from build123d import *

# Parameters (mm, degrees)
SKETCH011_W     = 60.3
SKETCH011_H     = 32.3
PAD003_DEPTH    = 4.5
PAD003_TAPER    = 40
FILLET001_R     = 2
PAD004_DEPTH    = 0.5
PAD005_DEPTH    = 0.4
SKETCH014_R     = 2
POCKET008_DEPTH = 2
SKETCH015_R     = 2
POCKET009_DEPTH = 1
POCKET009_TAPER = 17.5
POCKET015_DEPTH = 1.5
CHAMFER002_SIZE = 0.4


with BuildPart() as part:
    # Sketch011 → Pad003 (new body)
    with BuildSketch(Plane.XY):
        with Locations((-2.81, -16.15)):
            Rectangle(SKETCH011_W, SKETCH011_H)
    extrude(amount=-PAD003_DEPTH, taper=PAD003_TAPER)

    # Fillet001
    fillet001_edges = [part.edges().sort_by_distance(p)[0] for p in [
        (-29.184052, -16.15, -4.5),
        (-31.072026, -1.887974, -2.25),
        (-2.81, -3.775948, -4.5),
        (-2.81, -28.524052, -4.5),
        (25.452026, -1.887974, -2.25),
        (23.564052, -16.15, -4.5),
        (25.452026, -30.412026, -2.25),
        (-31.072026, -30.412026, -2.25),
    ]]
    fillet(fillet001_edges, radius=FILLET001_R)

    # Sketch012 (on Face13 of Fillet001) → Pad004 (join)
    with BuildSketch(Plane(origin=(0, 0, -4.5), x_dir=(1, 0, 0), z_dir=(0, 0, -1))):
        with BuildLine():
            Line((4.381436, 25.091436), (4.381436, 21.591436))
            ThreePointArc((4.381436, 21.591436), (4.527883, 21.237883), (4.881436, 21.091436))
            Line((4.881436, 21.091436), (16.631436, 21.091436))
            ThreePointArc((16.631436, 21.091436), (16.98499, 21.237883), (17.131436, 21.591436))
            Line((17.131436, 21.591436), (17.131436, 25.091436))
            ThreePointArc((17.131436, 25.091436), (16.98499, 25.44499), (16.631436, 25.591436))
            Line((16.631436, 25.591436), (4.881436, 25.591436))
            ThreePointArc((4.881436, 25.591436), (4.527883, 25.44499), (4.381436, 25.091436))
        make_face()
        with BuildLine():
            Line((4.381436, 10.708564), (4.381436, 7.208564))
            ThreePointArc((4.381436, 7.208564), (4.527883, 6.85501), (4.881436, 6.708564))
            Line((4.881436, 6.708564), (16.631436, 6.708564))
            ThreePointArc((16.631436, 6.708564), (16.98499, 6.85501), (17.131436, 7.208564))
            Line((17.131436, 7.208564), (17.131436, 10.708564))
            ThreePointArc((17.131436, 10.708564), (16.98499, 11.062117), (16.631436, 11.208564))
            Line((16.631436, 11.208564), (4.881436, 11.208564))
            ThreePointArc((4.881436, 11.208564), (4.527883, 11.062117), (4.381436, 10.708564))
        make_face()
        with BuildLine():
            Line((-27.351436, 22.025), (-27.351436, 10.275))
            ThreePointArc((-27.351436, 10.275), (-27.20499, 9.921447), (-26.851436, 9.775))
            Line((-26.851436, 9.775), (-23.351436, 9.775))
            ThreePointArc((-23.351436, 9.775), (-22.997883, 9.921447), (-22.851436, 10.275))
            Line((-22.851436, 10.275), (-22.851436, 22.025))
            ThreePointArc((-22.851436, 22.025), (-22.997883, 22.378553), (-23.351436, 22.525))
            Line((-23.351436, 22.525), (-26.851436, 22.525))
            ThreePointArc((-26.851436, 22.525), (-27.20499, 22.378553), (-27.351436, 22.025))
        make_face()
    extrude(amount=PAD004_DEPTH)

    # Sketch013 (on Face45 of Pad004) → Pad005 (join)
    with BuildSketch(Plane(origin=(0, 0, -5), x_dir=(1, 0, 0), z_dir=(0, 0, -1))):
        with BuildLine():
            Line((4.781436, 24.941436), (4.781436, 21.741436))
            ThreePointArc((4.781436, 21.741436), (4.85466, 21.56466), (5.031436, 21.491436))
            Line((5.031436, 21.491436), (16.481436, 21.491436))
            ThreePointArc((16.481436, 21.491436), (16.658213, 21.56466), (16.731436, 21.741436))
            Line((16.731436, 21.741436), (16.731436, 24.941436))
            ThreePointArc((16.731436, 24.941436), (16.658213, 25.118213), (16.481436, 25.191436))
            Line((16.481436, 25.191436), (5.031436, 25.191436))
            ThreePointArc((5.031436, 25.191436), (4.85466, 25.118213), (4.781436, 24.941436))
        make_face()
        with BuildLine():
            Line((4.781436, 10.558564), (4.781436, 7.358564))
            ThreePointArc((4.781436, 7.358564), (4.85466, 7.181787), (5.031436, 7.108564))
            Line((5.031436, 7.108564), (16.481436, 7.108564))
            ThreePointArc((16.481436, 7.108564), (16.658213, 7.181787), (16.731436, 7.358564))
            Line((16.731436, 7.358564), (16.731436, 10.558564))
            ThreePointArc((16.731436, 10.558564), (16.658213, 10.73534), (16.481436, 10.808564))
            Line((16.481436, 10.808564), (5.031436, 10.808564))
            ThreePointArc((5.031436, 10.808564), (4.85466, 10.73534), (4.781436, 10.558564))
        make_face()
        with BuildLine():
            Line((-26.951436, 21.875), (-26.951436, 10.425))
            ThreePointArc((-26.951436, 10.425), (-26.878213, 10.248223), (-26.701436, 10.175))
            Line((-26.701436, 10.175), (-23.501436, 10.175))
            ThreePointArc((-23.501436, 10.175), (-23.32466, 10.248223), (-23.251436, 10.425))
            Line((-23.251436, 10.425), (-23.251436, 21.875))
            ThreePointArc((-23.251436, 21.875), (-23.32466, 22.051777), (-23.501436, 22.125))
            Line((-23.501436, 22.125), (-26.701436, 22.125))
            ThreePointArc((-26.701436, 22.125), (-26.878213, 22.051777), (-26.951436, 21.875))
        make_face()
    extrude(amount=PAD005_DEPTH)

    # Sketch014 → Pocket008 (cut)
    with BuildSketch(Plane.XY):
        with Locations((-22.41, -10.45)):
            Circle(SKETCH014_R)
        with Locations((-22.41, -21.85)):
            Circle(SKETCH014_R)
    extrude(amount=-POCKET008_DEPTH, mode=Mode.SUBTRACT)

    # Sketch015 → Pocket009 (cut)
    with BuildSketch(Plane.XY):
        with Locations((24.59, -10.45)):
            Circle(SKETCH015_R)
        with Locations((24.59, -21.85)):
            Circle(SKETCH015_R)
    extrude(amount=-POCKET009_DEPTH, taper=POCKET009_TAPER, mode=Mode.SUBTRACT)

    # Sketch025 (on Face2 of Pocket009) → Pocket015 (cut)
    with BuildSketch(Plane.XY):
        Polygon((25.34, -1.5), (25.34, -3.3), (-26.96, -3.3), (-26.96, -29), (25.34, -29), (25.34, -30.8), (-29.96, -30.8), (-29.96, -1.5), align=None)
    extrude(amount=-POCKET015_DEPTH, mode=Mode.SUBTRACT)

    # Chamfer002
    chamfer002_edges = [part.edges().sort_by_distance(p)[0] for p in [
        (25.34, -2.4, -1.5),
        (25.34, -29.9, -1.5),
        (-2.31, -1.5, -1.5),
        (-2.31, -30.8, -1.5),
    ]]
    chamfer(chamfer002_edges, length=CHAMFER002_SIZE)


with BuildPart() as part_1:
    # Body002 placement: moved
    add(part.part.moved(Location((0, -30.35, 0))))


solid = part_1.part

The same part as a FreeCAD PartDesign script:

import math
import FreeCAD as App
import Part
import Sketcher

V = App.Vector
Q = App.Units.Quantity


def edges_at(feature, points):
    """Names of the edges that pass closest to the given points."""
    edges = feature.Shape.Edges
    near = lambda p: min(range(len(edges)), key=lambda i: edges[i].distToShape(Part.Vertex(*p))[0])
    return sorted({f"Edge{near(p) + 1}" for p in points})


def add_polygon(sketch, points):
    """Adds a closed chain of lines whose ends are joined by coincident constraints."""
    first, n = sketch.GeometryCount, len(points)
    for a, b in zip(points, points[1:] + points[:1]):
        sketch.addGeometry(Part.LineSegment(App.Vector(*a, 0), App.Vector(*b, 0)), False)
    for i in range(n):
        sketch.addConstraint(Sketcher.Constraint("Coincident", first + i, 2, first + (i + 1) % n, 1))

doc = App.newDocument("Part")
params = doc.addObject("Spreadsheet::Sheet", "Params")
for row, (alias, value) in enumerate([
    ("sketch1_width", "60.3 mm"),
    ("sketch1_height", "32.3 mm"),
    ("pad1_length", "4.5 mm"),
    ("pad1_taper", "-40 deg"),
    ("fillet_radius", "2 mm"),
    ("sketch2_radius", "0.500001 mm"),
    ("sketch2_width", "3.5 mm"),
    ("sketch2_width2", "11.75 mm"),
    ("pad2_length", "0.5 mm"),
    ("sketch3_radius", "0.250001 mm"),
    ("sketch3_width", "3.2 mm"),
    ("sketch3_width2", "11.45 mm"),
    ("pad3_length", "0.4 mm"),
    ("sketch4_diameter", "4 mm"),
    ("pocket1_length", "2 mm"),
    ("sketch5_diameter", "4 mm"),
    ("pocket2_length", "1 mm"),
    ("pocket2_taper", "-17.5 deg"),
    ("sketch6_width", "55.3 mm"),
    ("sketch6_width2", "52.3 mm"),
    ("sketch6_height", "1.8 mm"),
    ("sketch6_height2", "29.3 mm"),
    ("pocket3_length", "1.5 mm"),
    ("chamfer_size", "0.4 mm"),
], start=1):
    params.set(f"A{row}", alias)
    params.set(f"B{row}", "=" + value)
    params.setAlias(f"B{row}", alias)

body = doc.addObject("PartDesign::Body", "Body")

# Sketch on XY plane
sketch1 = doc.addObject("Sketcher::SketchObject", "Sketch")
body.addObject(sketch1)
sketch1.AttachmentSupport = (doc.XY_Plane, [""])
sketch1.MapMode = "FlatFace"
add_polygon(sketch1, [(-33, 0), (-33, -32), (27, -32), (27, 0)])  # lines 0-3
sketch1.addConstraint(Sketcher.Constraint("Vertical", 0))
sketch1.addConstraint(Sketcher.Constraint("Horizontal", 1))
sketch1.addConstraint(Sketcher.Constraint("Vertical", 2))
sketch1.addConstraint(Sketcher.Constraint("Horizontal", 3))
sketch1.addConstraint(Sketcher.Constraint("PointOnObject", 2, 2, -1))
sketch1.addConstraint(Sketcher.Constraint("DistanceX", 1, 1, 1, 2, Q("60.3 mm")))
sketch1.addConstraint(Sketcher.Constraint("DistanceY", 0, 2, 0, 1, Q("32.3 mm")))
sketch1.addConstraint(Sketcher.Constraint("DistanceX", 0, 2, -1, 1, Q("32.96 mm")))
sketch1.setExpression("Constraints[9]", "Params.sketch1_width")
sketch1.setExpression("Constraints[10]", "Params.sketch1_height")
pad1 = doc.addObject("PartDesign::Pad", "Pad")
body.addObject(pad1)
pad1.Profile = sketch1
pad1.setExpression("Length", "Params.pad1_length")
pad1.Reversed = True
pad1.setExpression("TaperAngle", "Params.pad1_taper")
doc.recompute()

fillet = doc.addObject("PartDesign::Fillet", "Fillet")
body.addObject(fillet)
fillet.Base = (pad1, edges_at(pad1, [
    (-29.184, -16.15, -4.5),
    (-31.072, -1.888, -2.25),
    (-2.81, -3.776, -4.5),
    (-2.81, -28.524, -4.5),
    (25.452, -1.888, -2.25),
    (23.564, -16.15, -4.5),
    (25.452, -30.412, -2.25),
    (-31.072, -30.412, -2.25),
]))
fillet.setExpression("Radius", "Params.fillet_radius")

# Sketch on XY plane
sketch2 = doc.addObject("Sketcher::SketchObject", "Sketch001")
body.addObject(sketch2)
sketch2.AttachmentSupport = (doc.XY_Plane, [""])
sketch2.MapMode = "FlatFace"
sketch2.AttachmentOffset = App.Placement(V(0, 0, -4.5), App.Rotation())
sketch2.addGeometry(Part.LineSegment(V(4.38, -25.09, 0), V(4.38, -21.59, 0)), False)
sketch2.addGeometry(Part.ArcOfCircle(Part.Circle(V(4.88, -21.59, 0), V(0, 0, 1), 0.5), math.radians(90), math.radians(180)), False)
sketch2.addGeometry(Part.LineSegment(V(4.88, -21.09, 0), V(16.63, -21.09, 0)), False)
sketch2.addGeometry(Part.ArcOfCircle(Part.Circle(V(16.63, -21.59, 0), V(0, 0, 1), 0.5), math.radians(0), math.radians(90)), False)
sketch2.addGeometry(Part.LineSegment(V(17.13, -21.59, 0), V(17.13, -25.09, 0)), False)
sketch2.addGeometry(Part.ArcOfCircle(Part.Circle(V(16.63, -25.09, 0), V(0, 0, 1), 0.5), math.radians(-90), math.radians(0)), False)
sketch2.addGeometry(Part.LineSegment(V(16.63, -25.59, 0), V(4.88, -25.59, 0)), False)
sketch2.addGeometry(Part.ArcOfCircle(Part.Circle(V(4.88, -25.09, 0), V(0, 0, 1), 0.5), math.radians(180), math.radians(270)), False)
sketch2.addGeometry(Part.LineSegment(V(4.38, -10.71, 0), V(4.38, -7.21, 0)), False)
sketch2.addGeometry(Part.ArcOfCircle(Part.Circle(V(4.88, -7.21, 0), V(0, 0, 1), 0.5), math.radians(90), math.radians(180)), False)
sketch2.addGeometry(Part.LineSegment(V(4.88, -6.71, 0), V(16.63, -6.71, 0)), False)
sketch2.addGeometry(Part.ArcOfCircle(Part.Circle(V(16.63, -7.21, 0), V(0, 0, 1), 0.5), math.radians(0), math.radians(90)), False)
sketch2.addGeometry(Part.LineSegment(V(17.13, -7.21, 0), V(17.13, -10.71, 0)), False)
sketch2.addGeometry(Part.ArcOfCircle(Part.Circle(V(16.63, -10.71, 0), V(0, 0, 1), 0.5), math.radians(-90), math.radians(0)), False)
sketch2.addGeometry(Part.LineSegment(V(16.63, -11.21, 0), V(4.88, -11.21, 0)), False)
sketch2.addGeometry(Part.ArcOfCircle(Part.Circle(V(4.88, -10.71, 0), V(0, 0, 1), 0.5), math.radians(-180), math.radians(-90)), False)
sketch2.addGeometry(Part.LineSegment(V(-27.35, -22.02, 0), V(-27.35, -10.28, 0)), False)
sketch2.addGeometry(Part.ArcOfCircle(Part.Circle(V(-26.85, -10.27, 0), V(0, 0, 1), 0.5), math.radians(90), math.radians(180)), False)
sketch2.addGeometry(Part.LineSegment(V(-26.85, -9.78, 0), V(-23.35, -9.78, 0)), False)
sketch2.addGeometry(Part.ArcOfCircle(Part.Circle(V(-23.35, -10.28, 0), V(0, 0, 1), 0.5), math.radians(0), math.radians(90)), False)
sketch2.addGeometry(Part.LineSegment(V(-22.85, -10.28, 0), V(-22.85, -22.02, 0)), False)
sketch2.addGeometry(Part.ArcOfCircle(Part.Circle(V(-23.35, -22.02, 0), V(0, 0, 1), 0.5), math.radians(-90), math.radians(0)), False)
sketch2.addGeometry(Part.LineSegment(V(-23.35, -22.52, 0), V(-26.85, -22.52, 0)), False)
sketch2.addGeometry(Part.ArcOfCircle(Part.Circle(V(-26.85, -22.03, 0), V(0, 0, 1), 0.5), math.radians(180), math.radians(270)), False)
sketch2.addConstraint(Sketcher.Constraint("Coincident", 0, 2, 1, 2))
sketch2.addConstraint(Sketcher.Constraint("Coincident", 1, 1, 2, 1))
sketch2.addConstraint(Sketcher.Constraint("Tangent", 2, 2, 3, 2))
sketch2.addConstraint(Sketcher.Constraint("Tangent", 3, 1, 4, 1))
sketch2.addConstraint(Sketcher.Constraint("Coincident", 4, 2, 5, 2))
sketch2.addConstraint(Sketcher.Constraint("Coincident", 5, 1, 6, 1))
sketch2.addConstraint(Sketcher.Constraint("Tangent", 6, 2, 7, 2))
sketch2.addConstraint(Sketcher.Constraint("Tangent", 7, 1, 0, 1))
sketch2.addConstraint(Sketcher.Constraint("Tangent", 8, 2, 9, 2))
sketch2.addConstraint(Sketcher.Constraint("Tangent", 9, 1, 10, 1))
sketch2.addConstraint(Sketcher.Constraint("Coincident", 10, 2, 11, 2))
sketch2.addConstraint(Sketcher.Constraint("Coincident", 11, 1, 12, 1))
sketch2.addConstraint(Sketcher.Constraint("Tangent", 12, 2, 13, 2))
sketch2.addConstraint(Sketcher.Constraint("Tangent", 13, 1, 14, 1))
sketch2.addConstraint(Sketcher.Constraint("Coincident", 14, 2, 15, 2))
sketch2.addConstraint(Sketcher.Constraint("Coincident", 15, 1, 8, 1))
sketch2.addConstraint(Sketcher.Constraint("Tangent", 16, 2, 17, 2))
sketch2.addConstraint(Sketcher.Constraint("Tangent", 17, 1, 18, 1))
sketch2.addConstraint(Sketcher.Constraint("Coincident", 18, 2, 19, 2))
sketch2.addConstraint(Sketcher.Constraint("Coincident", 19, 1, 20, 1))
sketch2.addConstraint(Sketcher.Constraint("Coincident", 20, 2, 21, 2))
sketch2.addConstraint(Sketcher.Constraint("Coincident", 21, 1, 22, 1))
sketch2.addConstraint(Sketcher.Constraint("Tangent", 22, 2, 23, 2))
sketch2.addConstraint(Sketcher.Constraint("Tangent", 23, 1, 16, 1))
sketch2.addConstraint(Sketcher.Constraint("Vertical", 0))
sketch2.addConstraint(Sketcher.Constraint("Horizontal", 2))
sketch2.addConstraint(Sketcher.Constraint("Vertical", 4))
sketch2.addConstraint(Sketcher.Constraint("Horizontal", 6))
sketch2.addConstraint(Sketcher.Constraint("Vertical", 8))
sketch2.addConstraint(Sketcher.Constraint("Horizontal", 10))
sketch2.addConstraint(Sketcher.Constraint("Vertical", 12))
sketch2.addConstraint(Sketcher.Constraint("Horizontal", 14))
sketch2.addConstraint(Sketcher.Constraint("Vertical", 16))
sketch2.addConstraint(Sketcher.Constraint("Horizontal", 18))
sketch2.addConstraint(Sketcher.Constraint("Vertical", 20))
sketch2.addConstraint(Sketcher.Constraint("Horizontal", 22))
sketch2.addConstraint(Sketcher.Constraint("Equal", 1, 3))
sketch2.addConstraint(Sketcher.Constraint("Equal", 3, 5))
sketch2.addConstraint(Sketcher.Constraint("Equal", 5, 7))
sketch2.addConstraint(Sketcher.Constraint("Equal", 7, 9))
sketch2.addConstraint(Sketcher.Constraint("Equal", 9, 11))
sketch2.addConstraint(Sketcher.Constraint("Equal", 11, 13))
sketch2.addConstraint(Sketcher.Constraint("Equal", 13, 15))
sketch2.addConstraint(Sketcher.Constraint("Equal", 15, 17))
sketch2.addConstraint(Sketcher.Constraint("Equal", 17, 19))
sketch2.addConstraint(Sketcher.Constraint("Equal", 19, 21))
sketch2.addConstraint(Sketcher.Constraint("Equal", 21, 23))
sketch2.addConstraint(Sketcher.Constraint("Horizontal", 3, 3, 0, 2))
sketch2.addConstraint(Sketcher.Constraint("Horizontal", 7, 3, 4, 2))
sketch2.addConstraint(Sketcher.Constraint("Horizontal", 8, 2, 11, 1))
sketch2.addConstraint(Sketcher.Constraint("Horizontal", 12, 2, 15, 1))
sketch2.addConstraint(Sketcher.Constraint("Horizontal", 16, 2, 19, 1))
sketch2.addConstraint(Sketcher.Constraint("Horizontal", 23, 3, 20, 2))
sketch2.addConstraint(Sketcher.Constraint("Vertical", 7, 3, 9, 3))
sketch2.addConstraint(Sketcher.Constraint("Vertical", 5, 3, 11, 3))
sketch2.addConstraint(Sketcher.Constraint("Vertical", 15, 3, 1, 1))
sketch2.addConstraint(Sketcher.Constraint("Vertical", 2, 2, 5, 1))
sketch2.addConstraint(Sketcher.Constraint("Vertical", 5, 1, 10, 2))
sketch2.addConstraint(Sketcher.Constraint("Vertical", 9, 1, 14, 2))
sketch2.addConstraint(Sketcher.Constraint("Vertical", 21, 3, 18, 2))
sketch2.addConstraint(Sketcher.Constraint("Vertical", 18, 2, 21, 1))
sketch2.addConstraint(Sketcher.Constraint("Equal", 22, 0))
sketch2.addConstraint(Sketcher.Constraint("Equal", 4, 8))
sketch2.addConstraint(Sketcher.Constraint("Equal", 14, 16))
sketch2.addConstraint(Sketcher.Constraint("Radius", 1, Q("0.500001 mm")))
sketch2.addConstraint(Sketcher.Constraint("DistanceX", 18, 1, 18, 2, Q("3.5 mm")))
sketch2.addConstraint(Sketcher.Constraint("DistanceX", 2, 1, 2, 2, Q("11.75 mm")))
sketch2.addConstraint(Sketcher.Constraint("DistanceY", 17, 3, -1, 1, Q("10.275 mm")))
sketch2.addConstraint(Sketcher.Constraint("DistanceX", -1, 1, 5, 3, Q("16.631438 mm")))
sketch2.addConstraint(Sketcher.Constraint("DistanceY", 5, 3, -1, 1, Q("25.091438 mm")))
sketch2.addConstraint(Sketcher.Constraint("DistanceY", 11, 3, -1, 1, Q("7.208562 mm")))
sketch2.addConstraint(Sketcher.Constraint("DistanceX", 17, 3, -1, 1, Q("26.851436 mm")))
sketch2.setExpression("Constraints[64]", "Params.sketch2_radius")
sketch2.setExpression("Constraints[65]", "Params.sketch2_width")
sketch2.setExpression("Constraints[66]", "Params.sketch2_width2")
pad2 = doc.addObject("PartDesign::Pad", "Pad001")
body.addObject(pad2)
pad2.Profile = sketch2
pad2.setExpression("Length", "Params.pad2_length")
pad2.Reversed = True

# Sketch on XY plane
sketch3 = doc.addObject("Sketcher::SketchObject", "Sketch002")
body.addObject(sketch3)
sketch3.AttachmentSupport = (doc.XY_Plane, [""])
sketch3.MapMode = "FlatFace"
sketch3.AttachmentOffset = App.Placement(V(0, 0, -5), App.Rotation())
sketch3.addGeometry(Part.LineSegment(V(4.78, -24.94, 0), V(4.78, -21.74, 0)), False)
sketch3.addGeometry(Part.ArcOfCircle(Part.Circle(V(5.03, -21.74, 0), V(0, 0, 1), 0.25), math.radians(90), math.radians(180)), False)
sketch3.addGeometry(Part.LineSegment(V(5.03, -21.49, 0), V(16.48, -21.49, 0)), False)
sketch3.addGeometry(Part.ArcOfCircle(Part.Circle(V(16.48, -21.74, 0), V(0, 0, 1), 0.25), math.radians(0), math.radians(90)), False)
sketch3.addGeometry(Part.LineSegment(V(16.73, -21.74, 0), V(16.73, -24.94, 0)), False)
sketch3.addGeometry(Part.ArcOfCircle(Part.Circle(V(16.48, -24.94, 0), V(0, 0, 1), 0.25), math.radians(-90), math.radians(0)), False)
sketch3.addGeometry(Part.LineSegment(V(16.48, -25.19, 0), V(5.03, -25.19, 0)), False)
sketch3.addGeometry(Part.ArcOfCircle(Part.Circle(V(5.03, -24.94, 0), V(0, 0, 1), 0.25), math.radians(-180), math.radians(-90)), False)
sketch3.addGeometry(Part.LineSegment(V(4.78, -10.56, 0), V(4.78, -7.36, 0)), False)
sketch3.addGeometry(Part.ArcOfCircle(Part.Circle(V(5.03, -7.36, 0), V(0, 0, 1), 0.25), math.radians(90), math.radians(180)), False)
sketch3.addGeometry(Part.LineSegment(V(5.03, -7.11, 0), V(16.48, -7.11, 0)), False)
sketch3.addGeometry(Part.ArcOfCircle(Part.Circle(V(16.48, -7.36, 0), V(0, 0, 1), 0.25), math.radians(0), math.radians(90)), False)
sketch3.addGeometry(Part.LineSegment(V(16.73, -7.36, 0), V(16.73, -10.56, 0)), False)
sketch3.addGeometry(Part.ArcOfCircle(Part.Circle(V(16.48, -10.56, 0), V(0, 0, 1), 0.25), math.radians(-90), math.radians(0)), False)
sketch3.addGeometry(Part.LineSegment(V(16.48, -10.81, 0), V(5.03, -10.81, 0)), False)
sketch3.addGeometry(Part.ArcOfCircle(Part.Circle(V(5.03, -10.56, 0), V(0, 0, 1), 0.25), math.radians(-180), math.radians(-90)), False)
sketch3.addGeometry(Part.LineSegment(V(-26.95, -21.88, 0), V(-26.95, -10.43, 0)), False)
sketch3.addGeometry(Part.ArcOfCircle(Part.Circle(V(-26.7, -10.42, 0), V(0, 0, 1), 0.25), math.radians(90), math.radians(180)), False)
sketch3.addGeometry(Part.LineSegment(V(-26.7, -10.18, 0), V(-23.5, -10.18, 0)), False)
sketch3.addGeometry(Part.ArcOfCircle(Part.Circle(V(-23.5, -10.43, 0), V(0, 0, 1), 0.25), math.radians(0), math.radians(90)), False)
sketch3.addGeometry(Part.LineSegment(V(-23.25, -10.43, 0), V(-23.25, -21.88, 0)), False)
sketch3.addGeometry(Part.ArcOfCircle(Part.Circle(V(-23.5, -21.87, 0), V(0, 0, 1), 0.25), math.radians(-90), math.radians(0)), False)
sketch3.addGeometry(Part.LineSegment(V(-23.5, -22.12, 0), V(-26.7, -22.12, 0)), False)
sketch3.addGeometry(Part.ArcOfCircle(Part.Circle(V(-26.7, -21.88, 0), V(0, 0, 1), 0.25), math.radians(180), math.radians(270)), False)
sketch3.addConstraint(Sketcher.Constraint("Coincident", 0, 2, 1, 2))
sketch3.addConstraint(Sketcher.Constraint("Coincident", 1, 1, 2, 1))
sketch3.addConstraint(Sketcher.Constraint("Coincident", 2, 2, 3, 2))
sketch3.addConstraint(Sketcher.Constraint("Coincident", 3, 1, 4, 1))
sketch3.addConstraint(Sketcher.Constraint("Coincident", 4, 2, 5, 2))
sketch3.addConstraint(Sketcher.Constraint("Coincident", 5, 1, 6, 1))
sketch3.addConstraint(Sketcher.Constraint("Coincident", 6, 2, 7, 2))
sketch3.addConstraint(Sketcher.Constraint("Coincident", 7, 1, 0, 1))
sketch3.addConstraint(Sketcher.Constraint("Coincident", 8, 2, 9, 2))
sketch3.addConstraint(Sketcher.Constraint("Coincident", 9, 1, 10, 1))
sketch3.addConstraint(Sketcher.Constraint("Coincident", 10, 2, 11, 2))
sketch3.addConstraint(Sketcher.Constraint("Coincident", 11, 1, 12, 1))
sketch3.addConstraint(Sketcher.Constraint("Coincident", 12, 2, 13, 2))
sketch3.addConstraint(Sketcher.Constraint("Coincident", 13, 1, 14, 1))
sketch3.addConstraint(Sketcher.Constraint("Coincident", 14, 2, 15, 2))
sketch3.addConstraint(Sketcher.Constraint("Coincident", 15, 1, 8, 1))
sketch3.addConstraint(Sketcher.Constraint("Coincident", 16, 2, 17, 2))
sketch3.addConstraint(Sketcher.Constraint("Coincident", 17, 1, 18, 1))
sketch3.addConstraint(Sketcher.Constraint("Coincident", 18, 2, 19, 2))
sketch3.addConstraint(Sketcher.Constraint("Coincident", 19, 1, 20, 1))
sketch3.addConstraint(Sketcher.Constraint("Coincident", 20, 2, 21, 2))
sketch3.addConstraint(Sketcher.Constraint("Coincident", 21, 1, 22, 1))
sketch3.addConstraint(Sketcher.Constraint("Coincident", 22, 2, 23, 2))
sketch3.addConstraint(Sketcher.Constraint("Coincident", 23, 1, 16, 1))
sketch3.addConstraint(Sketcher.Constraint("Vertical", 0))
sketch3.addConstraint(Sketcher.Constraint("Horizontal", 2))
sketch3.addConstraint(Sketcher.Constraint("Vertical", 4))
sketch3.addConstraint(Sketcher.Constraint("Horizontal", 6))
sketch3.addConstraint(Sketcher.Constraint("Vertical", 8))
sketch3.addConstraint(Sketcher.Constraint("Horizontal", 10))
sketch3.addConstraint(Sketcher.Constraint("Vertical", 12))
sketch3.addConstraint(Sketcher.Constraint("Horizontal", 14))
sketch3.addConstraint(Sketcher.Constraint("Vertical", 16))
sketch3.addConstraint(Sketcher.Constraint("Horizontal", 18))
sketch3.addConstraint(Sketcher.Constraint("Vertical", 20))
sketch3.addConstraint(Sketcher.Constraint("Horizontal", 22))
sketch3.addConstraint(Sketcher.Constraint("Equal", 1, 3))
sketch3.addConstraint(Sketcher.Constraint("Equal", 3, 5))
sketch3.addConstraint(Sketcher.Constraint("Equal", 5, 7))
sketch3.addConstraint(Sketcher.Constraint("Equal", 7, 9))
sketch3.addConstraint(Sketcher.Constraint("Equal", 9, 11))
sketch3.addConstraint(Sketcher.Constraint("Equal", 11, 13))
sketch3.addConstraint(Sketcher.Constraint("Equal", 13, 15))
sketch3.addConstraint(Sketcher.Constraint("Equal", 13, 17))
sketch3.addConstraint(Sketcher.Constraint("Equal", 17, 19))
sketch3.addConstraint(Sketcher.Constraint("Equal", 19, 21))
sketch3.addConstraint(Sketcher.Constraint("Equal", 21, 23))
sketch3.addConstraint(Sketcher.Constraint("Horizontal", 3, 3, 0, 2))
sketch3.addConstraint(Sketcher.Constraint("Horizontal", 0, 2, 3, 1))
sketch3.addConstraint(Sketcher.Constraint("Horizontal", 7, 3, 4, 2))
sketch3.addConstraint(Sketcher.Constraint("Horizontal", 4, 2, 7, 1))
sketch3.addConstraint(Sketcher.Constraint("Horizontal", 11, 3, 8, 2))
sketch3.addConstraint(Sketcher.Constraint("Horizontal", 8, 2, 11, 1))
sketch3.addConstraint(Sketcher.Constraint("Horizontal", 13, 3, 12, 2))
sketch3.addConstraint(Sketcher.Constraint("Horizontal", 12, 2, 15, 1))
sketch3.addConstraint(Sketcher.Constraint("Horizontal", 19, 3, 16, 2))
sketch3.addConstraint(Sketcher.Constraint("Horizontal", 16, 2, 19, 1))
sketch3.addConstraint(Sketcher.Constraint("Horizontal", 23, 3, 20, 2))
sketch3.addConstraint(Sketcher.Constraint("Horizontal", 20, 2, 23, 1))
sketch3.addConstraint(Sketcher.Constraint("Vertical", 7, 3, 9, 3))
sketch3.addConstraint(Sketcher.Constraint("Vertical", 5, 3, 11, 3))
sketch3.addConstraint(Sketcher.Constraint("Vertical", 9, 3, 1, 1))
sketch3.addConstraint(Sketcher.Constraint("Vertical", 13, 3, 2, 2))
sketch3.addConstraint(Sketcher.Constraint("Vertical", 2, 2, 5, 1))
sketch3.addConstraint(Sketcher.Constraint("Vertical", 1, 1, 6, 2))
sketch3.addConstraint(Sketcher.Constraint("Vertical", 6, 2, 9, 1))
sketch3.addConstraint(Sketcher.Constraint("Vertical", 5, 1, 10, 2))
sketch3.addConstraint(Sketcher.Constraint("Vertical", 10, 2, 13, 1))
sketch3.addConstraint(Sketcher.Constraint("Vertical", 9, 1, 14, 2))
sketch3.addConstraint(Sketcher.Constraint("Vertical", 23, 3, 17, 1))
sketch3.addConstraint(Sketcher.Constraint("Vertical", 21, 3, 18, 2))
sketch3.addConstraint(Sketcher.Constraint("Vertical", 18, 2, 21, 1))
sketch3.addConstraint(Sketcher.Constraint("Vertical", 17, 1, 22, 2))
sketch3.addConstraint(Sketcher.Constraint("Equal", 22, 0))
sketch3.addConstraint(Sketcher.Constraint("Equal", 4, 8))
sketch3.addConstraint(Sketcher.Constraint("Equal", 14, 16))
sketch3.addConstraint(Sketcher.Constraint("Radius", 3, Q("0.250001 mm")))
sketch3.addConstraint(Sketcher.Constraint("DistanceX", 18, 1, 18, 2, Q("3.2 mm")))
sketch3.addConstraint(Sketcher.Constraint("DistanceX", 2, 1, 2, 2, Q("11.45 mm")))
sketch3.addConstraint(Sketcher.Constraint("DistanceY", 17, 3, -1, 1, Q("10.424999 mm")))
sketch3.addConstraint(Sketcher.Constraint("DistanceX", -1, 1, 1, 3, Q("5.031438 mm")))
sketch3.addConstraint(Sketcher.Constraint("DistanceY", 1, 3, -1, 1, Q("21.741438 mm")))
sketch3.addConstraint(Sketcher.Constraint("DistanceY", 15, 3, -1, 1, Q("10.558562 mm")))
sketch3.addConstraint(Sketcher.Constraint("DistanceX", 17, 3, -1, 1, Q("26.701437 mm")))
sketch3.setExpression("Constraints[76]", "Params.sketch3_radius")
sketch3.setExpression("Constraints[77]", "Params.sketch3_width")
sketch3.setExpression("Constraints[78]", "Params.sketch3_width2")
pad3 = doc.addObject("PartDesign::Pad", "Pad002")
body.addObject(pad3)
pad3.Profile = sketch3
pad3.setExpression("Length", "Params.pad3_length")
pad3.Reversed = True

# Sketch on XY plane
sketch4 = doc.addObject("Sketcher::SketchObject", "Sketch003")
body.addObject(sketch4)
sketch4.AttachmentSupport = (doc.XY_Plane, [""])
sketch4.MapMode = "FlatFace"
sketch4.addGeometry(Part.Circle(V(-22.4, -10.4, 0), V(0, 0, 1), 2), False)
sketch4.addGeometry(Part.Circle(V(-22.4, -21.9, 0), V(0, 0, 1), 2), False)
sketch4.addConstraint(Sketcher.Constraint("Equal", 0, 1))
sketch4.addConstraint(Sketcher.Constraint("Vertical", 0, 3, 1, 3))
sketch4.addConstraint(Sketcher.Constraint("Diameter", 0, Q("4 mm")))
sketch4.addConstraint(Sketcher.Constraint("DistanceY", 1, 3, 0, 3, Q("11.4 mm")))
sketch4.addConstraint(Sketcher.Constraint("DistanceX", 0, 3, -1, 1, Q("22.41 mm")))
sketch4.addConstraint(Sketcher.Constraint("DistanceY", 0, 3, -1, 1, Q("10.45 mm")))
sketch4.setExpression("Constraints[2]", "Params.sketch4_diameter")
pocket1 = doc.addObject("PartDesign::Pocket", "Pocket")
body.addObject(pocket1)
pocket1.Profile = sketch4
pocket1.setExpression("Length", "Params.pocket1_length")

# Sketch on XY plane
sketch5 = doc.addObject("Sketcher::SketchObject", "Sketch004")
body.addObject(sketch5)
sketch5.AttachmentSupport = (doc.XY_Plane, [""])
sketch5.MapMode = "FlatFace"
sketch5.addGeometry(Part.Circle(V(24.6, -10.4, 0), V(0, 0, 1), 2), False)
sketch5.addGeometry(Part.Circle(V(24.6, -21.9, 0), V(0, 0, 1), 2), False)
sketch5.addConstraint(Sketcher.Constraint("Equal", 0, 1))
sketch5.addConstraint(Sketcher.Constraint("Vertical", 0, 3, 1, 3))
sketch5.addConstraint(Sketcher.Constraint("Diameter", 0, Q("4 mm")))
sketch5.addConstraint(Sketcher.Constraint("DistanceY", 1, 3, 0, 3, Q("11.4 mm")))
sketch5.addConstraint(Sketcher.Constraint("DistanceX", -1, 1, 0, 3, Q("24.59 mm")))
sketch5.addConstraint(Sketcher.Constraint("DistanceY", 0, 3, -1, 1, Q("10.45 mm")))
sketch5.setExpression("Constraints[2]", "Params.sketch5_diameter")
pocket2 = doc.addObject("PartDesign::Pocket", "Pocket001")
body.addObject(pocket2)
pocket2.Profile = sketch5
pocket2.setExpression("Length", "Params.pocket2_length")
pocket2.setExpression("TaperAngle", "Params.pocket2_taper")

# Sketch on XY plane
sketch6 = doc.addObject("Sketcher::SketchObject", "Sketch005")
body.addObject(sketch6)
sketch6.AttachmentSupport = (doc.XY_Plane, [""])
sketch6.MapMode = "FlatFace"
add_polygon(sketch6, [(25.3, -3.3), (25.3, -1.5), (-30, -1.5), (-30, -30.8), (25.3, -30.8), (25.3, -29), (-27, -29), (-27, -3.3)])  # lines 0-7
sketch6.addConstraint(Sketcher.Constraint("Vertical", 0))
sketch6.addConstraint(Sketcher.Constraint("Horizontal", 1))
sketch6.addConstraint(Sketcher.Constraint("Vertical", 2))
sketch6.addConstraint(Sketcher.Constraint("Horizontal", 3))
sketch6.addConstraint(Sketcher.Constraint("Vertical", 4))
sketch6.addConstraint(Sketcher.Constraint("Horizontal", 5))
sketch6.addConstraint(Sketcher.Constraint("Vertical", 6))
sketch6.addConstraint(Sketcher.Constraint("Horizontal", 7))
sketch6.addConstraint(Sketcher.Constraint("Vertical", 0, 2, 3, 2))
sketch6.addConstraint(Sketcher.Constraint("Equal", 0, 4))
sketch6.addConstraint(Sketcher.Constraint("DistanceX", 1, 2, 1, 1, Q("55.3 mm")))
sketch6.addConstraint(Sketcher.Constraint("DistanceX", 5, 2, 5, 1, Q("52.3 mm")))
sketch6.addConstraint(Sketcher.Constraint("DistanceY", 0, 1, 0, 2, Q("1.8 mm")))
sketch6.addConstraint(Sketcher.Constraint("DistanceY", 2, 2, 2, 1, Q("29.3 mm")))
sketch6.addConstraint(Sketcher.Constraint("DistanceY", 4, 2, -1, 1, Q("29 mm")))
sketch6.addConstraint(Sketcher.Constraint("DistanceX", -1, 1, 0, 2, Q("25.34 mm")))
sketch6.setExpression("Constraints[18]", "Params.sketch6_width")
sketch6.setExpression("Constraints[19]", "Params.sketch6_width2")
sketch6.setExpression("Constraints[20]", "Params.sketch6_height")
sketch6.setExpression("Constraints[21]", "Params.sketch6_height2")
pocket3 = doc.addObject("PartDesign::Pocket", "Pocket002")
body.addObject(pocket3)
pocket3.Profile = sketch6
pocket3.setExpression("Length", "Params.pocket3_length")
doc.recompute()

chamfer = doc.addObject("PartDesign::Chamfer", "Chamfer")
body.addObject(chamfer)
chamfer.Base = (pocket3, edges_at(pocket3, [
    (25.34, -2.4, -1.5),
    (25.34, -29.9, -1.5),
    (-2.31, -1.5, -1.5),
    (-2.31, -30.8, -1.5),
]))
chamfer.setExpression("Size", "Params.chamfer_size")
body2 = doc.addObject("PartDesign::Body", "Body001")
doc.recompute()

body.Placement = App.Placement(V(0, -30.35, 0), App.Rotation(V(0, 0, 1), 0))
boolean = doc.addObject("PartDesign::Boolean", "Boolean")
body2.addObject(boolean)
boolean.Type = "Fuse"
boolean.addObjects([body])

doc.recompute()
